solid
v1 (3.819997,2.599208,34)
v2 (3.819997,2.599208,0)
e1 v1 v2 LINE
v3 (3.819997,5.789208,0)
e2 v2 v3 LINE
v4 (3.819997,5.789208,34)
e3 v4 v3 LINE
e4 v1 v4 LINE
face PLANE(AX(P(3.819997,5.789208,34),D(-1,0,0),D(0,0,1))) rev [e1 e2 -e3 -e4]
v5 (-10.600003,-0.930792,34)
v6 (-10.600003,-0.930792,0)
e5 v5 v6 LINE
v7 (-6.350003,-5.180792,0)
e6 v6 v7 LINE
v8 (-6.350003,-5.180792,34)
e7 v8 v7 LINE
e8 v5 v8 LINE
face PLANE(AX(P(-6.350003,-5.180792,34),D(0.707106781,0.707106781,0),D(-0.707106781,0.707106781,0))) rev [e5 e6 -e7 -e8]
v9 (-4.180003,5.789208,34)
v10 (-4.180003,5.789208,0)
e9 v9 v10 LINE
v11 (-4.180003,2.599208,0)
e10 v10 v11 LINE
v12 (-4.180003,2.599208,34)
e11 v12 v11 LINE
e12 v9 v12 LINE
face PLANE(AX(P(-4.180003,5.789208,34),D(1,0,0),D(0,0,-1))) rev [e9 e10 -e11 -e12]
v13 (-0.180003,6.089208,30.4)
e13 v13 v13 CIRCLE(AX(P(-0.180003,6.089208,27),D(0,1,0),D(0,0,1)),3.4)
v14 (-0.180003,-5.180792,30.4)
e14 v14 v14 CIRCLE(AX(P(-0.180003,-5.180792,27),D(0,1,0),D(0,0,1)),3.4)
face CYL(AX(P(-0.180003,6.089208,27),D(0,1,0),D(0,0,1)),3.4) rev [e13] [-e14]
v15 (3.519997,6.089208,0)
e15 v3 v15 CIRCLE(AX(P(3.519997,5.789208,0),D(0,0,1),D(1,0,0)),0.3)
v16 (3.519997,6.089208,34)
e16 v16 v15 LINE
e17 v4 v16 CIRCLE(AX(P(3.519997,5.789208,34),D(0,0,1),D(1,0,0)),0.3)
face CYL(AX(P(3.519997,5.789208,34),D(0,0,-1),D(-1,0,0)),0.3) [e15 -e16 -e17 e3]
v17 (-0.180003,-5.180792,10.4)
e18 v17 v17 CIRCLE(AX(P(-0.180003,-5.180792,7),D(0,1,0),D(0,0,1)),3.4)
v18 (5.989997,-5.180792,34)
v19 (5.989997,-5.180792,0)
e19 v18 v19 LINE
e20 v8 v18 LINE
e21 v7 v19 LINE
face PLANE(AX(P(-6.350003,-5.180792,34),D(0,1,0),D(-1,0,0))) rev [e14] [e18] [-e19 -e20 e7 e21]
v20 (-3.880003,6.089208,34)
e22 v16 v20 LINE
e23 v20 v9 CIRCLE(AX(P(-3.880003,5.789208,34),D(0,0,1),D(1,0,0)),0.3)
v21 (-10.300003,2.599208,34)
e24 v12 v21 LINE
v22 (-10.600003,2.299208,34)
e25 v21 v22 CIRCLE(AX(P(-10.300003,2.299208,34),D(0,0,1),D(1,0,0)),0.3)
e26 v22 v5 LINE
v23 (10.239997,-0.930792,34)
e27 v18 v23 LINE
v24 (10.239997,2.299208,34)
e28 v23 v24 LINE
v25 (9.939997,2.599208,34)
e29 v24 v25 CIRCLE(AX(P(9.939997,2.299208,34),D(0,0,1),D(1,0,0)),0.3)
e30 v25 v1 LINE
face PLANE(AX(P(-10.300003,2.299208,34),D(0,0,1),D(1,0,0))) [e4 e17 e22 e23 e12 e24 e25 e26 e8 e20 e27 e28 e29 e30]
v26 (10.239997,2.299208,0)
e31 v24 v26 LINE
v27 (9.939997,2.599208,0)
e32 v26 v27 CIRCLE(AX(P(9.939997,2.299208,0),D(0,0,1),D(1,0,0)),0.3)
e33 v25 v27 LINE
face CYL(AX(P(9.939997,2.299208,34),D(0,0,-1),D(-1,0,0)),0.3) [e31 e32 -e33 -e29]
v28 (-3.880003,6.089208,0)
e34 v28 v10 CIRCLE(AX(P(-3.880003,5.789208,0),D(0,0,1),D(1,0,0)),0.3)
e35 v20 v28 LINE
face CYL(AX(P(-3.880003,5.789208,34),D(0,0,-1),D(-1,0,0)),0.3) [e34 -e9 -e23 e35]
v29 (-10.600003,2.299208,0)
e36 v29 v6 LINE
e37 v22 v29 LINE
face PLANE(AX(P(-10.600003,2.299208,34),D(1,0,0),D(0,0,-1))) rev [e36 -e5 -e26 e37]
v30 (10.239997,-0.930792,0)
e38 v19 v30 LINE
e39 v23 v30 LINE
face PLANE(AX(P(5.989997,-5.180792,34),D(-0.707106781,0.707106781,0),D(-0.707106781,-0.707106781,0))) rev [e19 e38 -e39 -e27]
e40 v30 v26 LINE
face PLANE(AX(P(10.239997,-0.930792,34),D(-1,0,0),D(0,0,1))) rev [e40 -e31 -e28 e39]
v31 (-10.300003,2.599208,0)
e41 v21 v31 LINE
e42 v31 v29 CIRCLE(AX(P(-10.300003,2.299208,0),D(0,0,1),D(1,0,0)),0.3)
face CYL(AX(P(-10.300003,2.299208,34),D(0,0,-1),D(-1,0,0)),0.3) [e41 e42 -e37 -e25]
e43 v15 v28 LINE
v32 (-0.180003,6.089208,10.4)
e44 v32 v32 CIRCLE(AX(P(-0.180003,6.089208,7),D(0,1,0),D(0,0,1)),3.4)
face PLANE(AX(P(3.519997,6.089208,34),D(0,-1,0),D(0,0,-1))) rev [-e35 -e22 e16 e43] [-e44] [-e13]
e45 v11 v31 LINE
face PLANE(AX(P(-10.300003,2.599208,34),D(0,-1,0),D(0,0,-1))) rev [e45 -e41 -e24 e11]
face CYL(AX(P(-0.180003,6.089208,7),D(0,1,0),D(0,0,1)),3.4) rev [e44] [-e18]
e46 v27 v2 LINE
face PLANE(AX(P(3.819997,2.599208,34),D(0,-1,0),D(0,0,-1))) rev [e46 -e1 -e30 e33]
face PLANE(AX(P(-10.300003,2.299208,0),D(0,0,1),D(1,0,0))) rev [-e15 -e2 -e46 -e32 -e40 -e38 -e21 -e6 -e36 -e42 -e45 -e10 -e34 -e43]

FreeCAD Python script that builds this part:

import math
import FreeCAD as App
import Part
import Sketcher

V = App.Vector
Q = App.Units.Quantity

doc = App.newDocument("Part")
body = doc.addObject("PartDesign::Body", "Body")

# Sketch on XY plane
sketch1 = doc.addObject("Sketcher::SketchObject", "Sketch")
body.addObject(sketch1)
sketch1.AttachmentSupport = (doc.XY_Plane, [""])
sketch1.MapMode = "FlatFace"
sketch1.addGeometry([
    Part.LineSegment(V(-6.35, -5.18, 0), V(5.99, -5.18, 0)),  # 0
    Part.LineSegment(V(5.99, -5.18, 0), V(10.24, -0.93, 0)),  # 1
    Part.LineSegment(V(10.24, -0.93, 0), V(10.24, 2.3, 0)),  # 2
    Part.ArcOfCircle(Part.Circle(V(9.94, 2.3, 0), V(0, 0, 1), 0.3), math.radians(0), math.radians(90)),  # 3
    Part.LineSegment(V(9.94, 2.6, 0), V(3.82, 2.6, 0)),  # 4
    Part.LineSegment(V(3.82, 2.6, 0), V(3.82, 5.79, 0)),  # 5
    Part.ArcOfCircle(Part.Circle(V(3.52, 5.79, 0), V(0, 0, 1), 0.3), math.radians(0), math.radians(90)),  # 6
    Part.LineSegment(V(3.52, 6.09, 0), V(-3.88, 6.09, 0)),  # 7
    Part.ArcOfCircle(Part.Circle(V(-3.88, 5.79, 0), V(0, 0, 1), 0.3), math.radians(90), math.radians(180)),  # 8
    Part.LineSegment(V(-4.18, 5.79, 0), V(-4.18, 2.6, 0)),  # 9
    Part.LineSegment(V(-4.18, 2.6, 0), V(-10.3, 2.6, 0)),  # 10
    Part.ArcOfCircle(Part.Circle(V(-10.3, 2.3, 0), V(0, 0, 1), 0.3), math.radians(90), math.radians(180)),  # 11
    Part.LineSegment(V(-10.6, 2.3, 0), V(-10.6, -0.93, 0)),  # 12
    Part.LineSegment(V(-10.6, -0.93, 0), V(-6.35, -5.18, 0)),  # 13
], False)
sketch1.addConstraint([
    Sketcher.Constraint("Coincident", 0, 2, 1, 1),
    Sketcher.Constraint("Coincident", 1, 2, 2, 1),
    Sketcher.Constraint("Tangent", 2, 2, 3, 1),
    Sketcher.Constraint("Tangent", 3, 2, 4, 1),
    Sketcher.Constraint("Coincident", 4, 2, 5, 1),
    Sketcher.Constraint("Tangent", 5, 2, 6, 1),
    Sketcher.Constraint("Tangent", 6, 2, 7, 1),
    Sketcher.Constraint("Tangent", 7, 2, 8, 1),
    Sketcher.Constraint("Tangent", 8, 2, 9, 1),
    Sketcher.Constraint("Coincident", 9, 2, 10, 1),
    Sketcher.Constraint("Tangent", 10, 2, 11, 1),
    Sketcher.Constraint("Tangent", 11, 2, 12, 1),
    Sketcher.Constraint("Coincident", 12, 2, 13, 1),
    Sketcher.Constraint("Coincident", 13, 2, 0, 1),
    Sketcher.Constraint("Horizontal", 0),
    Sketcher.Constraint("Vertical", 2),
    Sketcher.Constraint("Horizontal", 4),
    Sketcher.Constraint("Vertical", 5),
    Sketcher.Constraint("Horizontal", 7),
    Sketcher.Constraint("Vertical", 9),
    Sketcher.Constraint("Horizontal", 10),
    Sketcher.Constraint("Vertical", 12),
    Sketcher.Constraint("Equal", 3, 6),
    Sketcher.Constraint("Equal", 6, 8),
    Sketcher.Constraint("Equal", 8, 11),
    Sketcher.Constraint("Perpendicular", 1, 13),
    Sketcher.Constraint("Horizontal", 3, 3, 11, 3),
    Sketcher.Constraint("Horizontal", 1, 2, 12, 2),
    Sketcher.Constraint("Equal", 4, 10),
    Sketcher.Constraint("Equal", 1, 13),
    Sketcher.Constraint("Radius", 3, Q("0.3 mm")),
    Sketcher.Constraint("DistanceX", 7, 2, 7, 1, Q("7.4 mm")),
    Sketcher.Constraint("DistanceX", 0, 1, 0, 2, Q("12.34 mm")),
    Sketcher.Constraint("DistanceX", 4, 2, 4, 1, Q("6.12 mm")),
    Sketcher.Constraint("DistanceY", 2, 1, 2, 2, Q("3.23 mm")),
    Sketcher.Constraint("DistanceY", 5, 1, 5, 2, Q("3.19 mm")),
    Sketcher.Constraint("DistanceX", -1, 1, 3, 3, Q("9.939997 mm")),
    Sketcher.Constraint("DistanceY", -1, 1, 3, 3, Q("2.299208 mm")),
])
pad1 = doc.addObject("PartDesign::Pad", "Pad")
body.addObject(pad1)
pad1.Profile = sketch1
pad1.Length = 34

# Sketch on XZ plane
sketch2 = doc.addObject("Sketcher::SketchObject", "Sketch001")
body.addObject(sketch2)
sketch2.AttachmentSupport = (doc.XZ_Plane, [""])
sketch2.MapMode = "FlatFace"
sketch2.AttachmentOffset = App.Placement(V(0, 0, -6.089208), App.Rotation())
sketch2.addGeometry([
    Part.Circle(V(-0.2, 7, 0), V(0, 0, 1), 3.4),
    Part.Circle(V(-0.2, 27, 0), V(0, 0, 1), 3.4),
], False)
sketch2.addConstraint([
    Sketcher.Constraint("Equal", 0, 1),
    Sketcher.Constraint("Vertical", 0, 3, 1, 3),
    Sketcher.Constraint("Diameter", 0, Q("6.8 mm")),
    Sketcher.Constraint("DistanceY", -1, 1, 0, 3, Q("7 mm")),
    Sketcher.Constraint("DistanceY", -1, 1, 1, 3, Q("27 mm")),
    Sketcher.Constraint("DistanceX", 0, 3, -1, 1, Q("0.180003 mm")),
])
doc.recompute()
hole = doc.addObject("PartDesign::Hole", "Hole")
body.addObject(hole)
hole.Profile = sketch2
hole.ThreadType = "None"
hole.Diameter = 6.8
hole.DepthType = "ThroughAll"
hole.Reversed = True

doc.recompute()
